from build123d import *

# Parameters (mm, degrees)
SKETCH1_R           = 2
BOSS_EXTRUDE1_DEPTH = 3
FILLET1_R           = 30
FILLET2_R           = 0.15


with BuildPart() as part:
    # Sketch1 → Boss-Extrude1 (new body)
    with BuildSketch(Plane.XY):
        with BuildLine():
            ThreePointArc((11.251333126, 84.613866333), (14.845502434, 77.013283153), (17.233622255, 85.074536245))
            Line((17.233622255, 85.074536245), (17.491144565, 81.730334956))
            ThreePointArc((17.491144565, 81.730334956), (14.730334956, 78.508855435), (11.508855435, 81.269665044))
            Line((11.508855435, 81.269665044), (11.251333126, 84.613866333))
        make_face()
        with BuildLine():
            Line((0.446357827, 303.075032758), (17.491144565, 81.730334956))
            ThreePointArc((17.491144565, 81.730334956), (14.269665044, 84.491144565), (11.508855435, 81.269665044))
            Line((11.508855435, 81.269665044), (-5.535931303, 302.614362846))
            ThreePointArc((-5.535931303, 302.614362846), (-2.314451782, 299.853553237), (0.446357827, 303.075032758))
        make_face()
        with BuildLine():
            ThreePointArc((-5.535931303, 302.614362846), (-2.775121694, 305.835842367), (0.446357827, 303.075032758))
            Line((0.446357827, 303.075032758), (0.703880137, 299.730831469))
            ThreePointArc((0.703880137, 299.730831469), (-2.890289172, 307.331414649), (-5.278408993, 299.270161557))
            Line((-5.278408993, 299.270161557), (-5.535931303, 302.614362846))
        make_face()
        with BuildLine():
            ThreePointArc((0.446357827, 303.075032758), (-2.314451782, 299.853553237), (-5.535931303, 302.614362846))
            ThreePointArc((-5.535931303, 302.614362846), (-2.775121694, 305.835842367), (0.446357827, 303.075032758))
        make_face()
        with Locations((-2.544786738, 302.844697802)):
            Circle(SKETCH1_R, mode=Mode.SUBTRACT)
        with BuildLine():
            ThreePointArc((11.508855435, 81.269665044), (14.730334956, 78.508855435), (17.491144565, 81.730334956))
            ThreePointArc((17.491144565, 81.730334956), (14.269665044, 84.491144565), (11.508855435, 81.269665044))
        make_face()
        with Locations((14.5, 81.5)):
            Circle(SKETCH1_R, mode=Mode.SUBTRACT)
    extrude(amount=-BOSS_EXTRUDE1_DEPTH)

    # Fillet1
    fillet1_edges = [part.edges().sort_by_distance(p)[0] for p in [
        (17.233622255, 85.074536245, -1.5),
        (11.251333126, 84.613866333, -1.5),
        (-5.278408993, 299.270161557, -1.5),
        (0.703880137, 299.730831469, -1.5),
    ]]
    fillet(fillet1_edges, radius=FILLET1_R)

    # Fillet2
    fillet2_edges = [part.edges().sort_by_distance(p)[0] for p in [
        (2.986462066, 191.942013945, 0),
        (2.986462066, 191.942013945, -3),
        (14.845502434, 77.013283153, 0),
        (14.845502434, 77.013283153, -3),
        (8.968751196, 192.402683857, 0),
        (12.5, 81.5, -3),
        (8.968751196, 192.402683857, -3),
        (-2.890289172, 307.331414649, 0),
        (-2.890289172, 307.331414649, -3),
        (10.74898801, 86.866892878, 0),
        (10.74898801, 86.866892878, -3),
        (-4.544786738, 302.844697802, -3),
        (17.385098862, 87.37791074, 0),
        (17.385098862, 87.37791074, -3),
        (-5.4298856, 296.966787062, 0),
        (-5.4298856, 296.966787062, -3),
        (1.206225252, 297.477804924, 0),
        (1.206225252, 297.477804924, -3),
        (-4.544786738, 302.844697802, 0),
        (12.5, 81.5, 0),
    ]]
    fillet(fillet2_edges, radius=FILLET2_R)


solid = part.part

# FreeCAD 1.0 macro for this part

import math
import FreeCAD as App
import Part
import Sketcher


def edges_at(feature, points):
    """Names of the edges that pass closest to the given points."""
    edges = feature.Shape.Edges
    near = lambda p: min(range(len(edges)), key=lambda i: edges[i].distToShape(Part.Vertex(*p))[0])
    return sorted({f"Edge{near(p) + 1}" for p in points})

doc = App.newDocument("Part")
body = doc.addObject("PartDesign::Body", "Body")

# Sketch on XY plane
sketch1 = body.newObject("Sketcher::SketchObject", "Sketch")
sketch1.AttachmentSupport = (doc.getObject("XY_Plane"), [""])
sketch1.MapMode = "FlatFace"
sketch1.addGeometry([
    Part.ArcOfCircle(Part.Circle(App.Vector(14.5, 81.5, 0), App.Vector(0, 0, 1), 4.5), math.radians(136.213722), math.radians(412.593092)),  # 0
    Part.LineSegment(App.Vector(17.233622, 85.074536, 0), App.Vector(0.70388, 299.730831, 0)),  # 1
    Part.ArcOfCircle(Part.Circle(App.Vector(-2.544787, 302.844698, 0), App.Vector(0, 0, 1), 4.5), math.radians(-43.786278), math.radians(232.593092)),  # 2
    Part.LineSegment(App.Vector(-5.278409, 299.270162, 0), App.Vector(11.251333, 84.613866, 0)),  # 3
    Part.Circle(App.Vector(14.5, 81.5, 0), App.Vector(0, 0, 1), 2),  # 4
    Part.Circle(App.Vector(-2.544787, 302.844698, 0), App.Vector(0, 0, 1), 2),  # 5
], False)
sketch1.addConstraint([
    Sketcher.Constraint("Coincident", 0, 2, 1, 1),
    Sketcher.Constraint("Coincident", 1, 2, 2, 1),
    Sketcher.Constraint("Coincident", 2, 2, 3, 1),
    Sketcher.Constraint("Coincident", 3, 2, 0, 1),
    Sketcher.Constraint("Coincident", 4, 3, 0, 3),
    Sketcher.Constraint("Coincident", 5, 3, 2, 3),
    Sketcher.Constraint("Equal", 0, 2),
    Sketcher.Constraint("Equal", 4, 5),
    Sketcher.Constraint("Parallel", 1, 3),
    Sketcher.Constraint("Equal", 1, 3),
    Sketcher.Constraint("Diameter", 4, 4.0),
    Sketcher.Constraint("Radius", 0, 4.5),
    Sketcher.Constraint("DistanceX", -1, 1, 0, 3, 14.5),
    Sketcher.Constraint("DistanceY", -1, 1, 0, 3, 81.5),
    Sketcher.Constraint("DistanceX", -1, 1, 1, 2, 0.70388),
    Sketcher.Constraint("DistanceY", -1, 1, 1, 2, 299.730831),
    Sketcher.Constraint("DistanceX", 2, 2, -1, 1, 5.278409),
    Sketcher.Constraint("DistanceY", -1, 1, 2, 2, 299.270162),
])
pad1 = body.newObject("PartDesign::Pad", "Pad")
pad1.Profile = sketch1
pad1.Length = 3
pad1.Reversed = True
doc.recompute()

fillet = body.newObject("PartDesign::Fillet", "Fillet")
fillet.Base = (pad1, edges_at(pad1, [
    (17.234, 85.075, -1.5),
    (11.251, 84.614, -1.5),
    (-5.278, 299.27, -1.5),
    (0.704, 299.731, -1.5),
]))
fillet.Radius = 30
doc.recompute()

fillet2 = body.newObject("PartDesign::Fillet", "Fillet001")
fillet2.Base = (fillet, edges_at(fillet, [
    (2.986, 191.942, 0),
    (2.986, 191.942, -3),
    (14.846, 77.013, 0),
    (14.846, 77.013, -3),
    (8.969, 192.403, 0),
    (12.5, 81.5, -3),
    (8.969, 192.403, -3),
    (-2.89, 307.331, 0),
    (-2.89, 307.331, -3),
    (10.749, 86.867, 0),
    (10.749, 86.867, -3),
    (-4.545, 302.845, -3),
    (17.385, 87.378, 0),
    (17.385, 87.378, -3),
    (-5.43, 296.967, 0),
    (-5.43, 296.967, -3),
    (1.206, 297.478, 0),
    (1.206, 297.478, -3),
    (-4.545, 302.845, 0),
    (12.5, 81.5, 0),
]))
fillet2.Radius = 0.15

doc.recompute()
